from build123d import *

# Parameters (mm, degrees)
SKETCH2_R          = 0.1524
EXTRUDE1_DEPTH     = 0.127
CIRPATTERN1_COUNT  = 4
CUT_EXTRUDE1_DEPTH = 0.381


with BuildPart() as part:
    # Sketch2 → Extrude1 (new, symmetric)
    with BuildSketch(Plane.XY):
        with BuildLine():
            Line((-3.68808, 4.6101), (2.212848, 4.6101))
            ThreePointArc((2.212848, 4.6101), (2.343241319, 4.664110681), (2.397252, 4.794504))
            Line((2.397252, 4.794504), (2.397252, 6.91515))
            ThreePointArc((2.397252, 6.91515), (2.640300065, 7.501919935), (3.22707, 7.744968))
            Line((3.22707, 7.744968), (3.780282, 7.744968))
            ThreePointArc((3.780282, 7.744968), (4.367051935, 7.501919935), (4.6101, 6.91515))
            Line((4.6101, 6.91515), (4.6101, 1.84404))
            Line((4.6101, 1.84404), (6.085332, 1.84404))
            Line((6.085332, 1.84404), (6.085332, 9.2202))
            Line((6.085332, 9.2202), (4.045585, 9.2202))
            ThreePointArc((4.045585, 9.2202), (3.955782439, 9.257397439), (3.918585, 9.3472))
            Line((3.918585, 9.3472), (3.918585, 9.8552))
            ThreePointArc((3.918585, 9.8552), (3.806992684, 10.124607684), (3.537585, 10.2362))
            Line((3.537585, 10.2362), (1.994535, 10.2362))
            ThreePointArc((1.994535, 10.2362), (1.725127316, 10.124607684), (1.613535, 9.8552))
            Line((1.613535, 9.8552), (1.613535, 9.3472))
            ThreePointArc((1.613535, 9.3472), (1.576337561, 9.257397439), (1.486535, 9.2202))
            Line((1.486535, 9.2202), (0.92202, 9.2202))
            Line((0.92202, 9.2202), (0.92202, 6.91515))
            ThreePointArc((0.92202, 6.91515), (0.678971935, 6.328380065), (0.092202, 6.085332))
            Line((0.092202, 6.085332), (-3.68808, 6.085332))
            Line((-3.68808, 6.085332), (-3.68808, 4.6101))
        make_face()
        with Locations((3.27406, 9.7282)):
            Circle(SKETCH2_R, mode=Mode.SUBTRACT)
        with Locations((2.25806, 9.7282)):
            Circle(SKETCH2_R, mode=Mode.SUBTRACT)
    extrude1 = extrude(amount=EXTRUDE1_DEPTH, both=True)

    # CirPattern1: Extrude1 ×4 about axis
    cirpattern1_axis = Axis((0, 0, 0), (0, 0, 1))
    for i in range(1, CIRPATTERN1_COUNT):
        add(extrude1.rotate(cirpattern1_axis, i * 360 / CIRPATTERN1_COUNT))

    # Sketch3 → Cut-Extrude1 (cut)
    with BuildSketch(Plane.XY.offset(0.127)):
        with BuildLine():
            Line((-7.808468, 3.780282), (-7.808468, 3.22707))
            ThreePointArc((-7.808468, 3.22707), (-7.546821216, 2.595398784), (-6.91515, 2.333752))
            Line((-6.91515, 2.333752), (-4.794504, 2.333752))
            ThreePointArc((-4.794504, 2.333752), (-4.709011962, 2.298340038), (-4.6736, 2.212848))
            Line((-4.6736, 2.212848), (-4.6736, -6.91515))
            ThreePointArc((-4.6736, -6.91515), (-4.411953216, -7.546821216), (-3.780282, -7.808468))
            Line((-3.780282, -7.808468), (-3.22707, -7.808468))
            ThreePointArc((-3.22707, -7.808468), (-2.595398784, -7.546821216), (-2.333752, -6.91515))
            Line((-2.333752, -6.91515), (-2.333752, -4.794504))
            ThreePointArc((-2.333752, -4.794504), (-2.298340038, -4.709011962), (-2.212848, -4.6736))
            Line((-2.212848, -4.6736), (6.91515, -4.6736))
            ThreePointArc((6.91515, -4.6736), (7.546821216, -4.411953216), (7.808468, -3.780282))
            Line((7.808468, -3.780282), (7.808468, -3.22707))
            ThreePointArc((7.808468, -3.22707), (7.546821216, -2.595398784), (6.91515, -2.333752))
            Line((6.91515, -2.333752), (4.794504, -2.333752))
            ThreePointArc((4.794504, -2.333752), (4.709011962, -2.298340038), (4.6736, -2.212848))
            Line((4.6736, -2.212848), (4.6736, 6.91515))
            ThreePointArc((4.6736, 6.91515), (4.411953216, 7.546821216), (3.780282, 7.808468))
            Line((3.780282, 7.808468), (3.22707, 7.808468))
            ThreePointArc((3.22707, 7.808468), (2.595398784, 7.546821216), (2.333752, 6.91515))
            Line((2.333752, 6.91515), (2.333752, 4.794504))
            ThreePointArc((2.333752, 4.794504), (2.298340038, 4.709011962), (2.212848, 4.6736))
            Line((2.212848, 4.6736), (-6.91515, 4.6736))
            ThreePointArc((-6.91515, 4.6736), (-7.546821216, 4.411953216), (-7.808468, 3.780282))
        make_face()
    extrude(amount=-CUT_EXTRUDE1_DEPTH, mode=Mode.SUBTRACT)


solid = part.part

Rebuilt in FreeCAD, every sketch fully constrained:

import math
import FreeCAD as App
import Part
import Sketcher
Q = App.Units.Quantity

doc = App.newDocument("Part")
body = doc.addObject("PartDesign::Body", "Body")

# Sketch on XY plane
sketch1 = doc.addObject("Sketcher::SketchObject", "Sketch")
body.addObject(sketch1)
sketch1.AttachmentSupport = (doc.XY_Plane, [""])
sketch1.MapMode = "FlatFace"
sketch1.addGeometry(Part.LineSegment(App.Vector(-3.69, 4.61, 0), App.Vector(2.21, 4.61, 0)), False)
sketch1.addGeometry(Part.ArcOfCircle(Part.Circle(App.Vector(2.21, 4.79, 0), App.Vector(0, 0, 1), 0.18), math.radians(-90), math.radians(0)), False)
sketch1.addGeometry(Part.LineSegment(App.Vector(2.4, 4.79, 0), App.Vector(2.4, 6.92, 0)), False)
sketch1.addGeometry(Part.ArcOfCircle(Part.Circle(App.Vector(3.23, 6.92, 0), App.Vector(0, 0, 1), 0.83), math.radians(90), math.radians(180)), False)
sketch1.addGeometry(Part.LineSegment(App.Vector(3.23, 7.74, 0), App.Vector(3.78, 7.74, 0)), False)
sketch1.addGeometry(Part.ArcOfCircle(Part.Circle(App.Vector(3.78, 6.92, 0), App.Vector(0, 0, 1), 0.83), math.radians(0), math.radians(90)), False)
sketch1.addGeometry(Part.LineSegment(App.Vector(4.61, 6.92, 0), App.Vector(4.61, 1.84, 0)), False)
sketch1.addGeometry(Part.LineSegment(App.Vector(4.61, 1.84, 0), App.Vector(6.09, 1.84, 0)), False)
sketch1.addGeometry(Part.LineSegment(App.Vector(6.09, 1.84, 0), App.Vector(6.09, 9.22, 0)), False)
sketch1.addGeometry(Part.LineSegment(App.Vector(6.09, 9.22, 0), App.Vector(4.05, 9.22, 0)), False)
sketch1.addGeometry(Part.ArcOfCircle(Part.Circle(App.Vector(4.05, 9.35, 0), App.Vector(0, 0, 1), 0.13), math.radians(-180), math.radians(-90)), False)
sketch1.addGeometry(Part.LineSegment(App.Vector(3.92, 9.35, 0), App.Vector(3.92, 9.86, 0)), False)
sketch1.addGeometry(Part.ArcOfCircle(Part.Circle(App.Vector(3.54, 9.86, 0), App.Vector(0, 0, 1), 0.38), math.radians(0), math.radians(90)), False)
sketch1.addGeometry(Part.LineSegment(App.Vector(3.54, 10.24, 0), App.Vector(1.99, 10.24, 0)), False)
sketch1.addGeometry(Part.ArcOfCircle(Part.Circle(App.Vector(1.99, 9.86, 0), App.Vector(0, 0, 1), 0.38), math.radians(90), math.radians(180)), False)
sketch1.addGeometry(Part.LineSegment(App.Vector(1.61, 9.86, 0), App.Vector(1.61, 9.35, 0)), False)
sketch1.addGeometry(Part.ArcOfCircle(Part.Circle(App.Vector(1.49, 9.35, 0), App.Vector(0, 0, 1), 0.13), math.radians(-90), math.radians(0)), False)
sketch1.addGeometry(Part.LineSegment(App.Vector(1.49, 9.22, 0), App.Vector(0.92, 9.22, 0)), False)
sketch1.addGeometry(Part.LineSegment(App.Vector(0.92, 9.22, 0), App.Vector(0.92, 6.92, 0)), False)
sketch1.addGeometry(Part.ArcOfCircle(Part.Circle(App.Vector(0.09, 6.92, 0), App.Vector(0, 0, 1), 0.83), math.radians(-90), math.radians(0)), False)
sketch1.addGeometry(Part.LineSegment(App.Vector(0.09, 6.09, 0), App.Vector(-3.69, 6.09, 0)), False)
sketch1.addGeometry(Part.LineSegment(App.Vector(-3.69, 6.09, 0), App.Vector(-3.69, 4.61, 0)), False)
sketch1.addGeometry(Part.Circle(App.Vector(2.26, 9.73, 0), App.Vector(0, 0, 1), 0.15), False)
sketch1.addGeometry(Part.Circle(App.Vector(3.27, 9.73, 0), App.Vector(0, 0, 1), 0.15), False)
sketch1.addConstraint(Sketcher.Constraint("Tangent", 0, 2, 1, 1))
sketch1.addConstraint(Sketcher.Constraint("Tangent", 1, 2, 2, 1))
sketch1.addConstraint(Sketcher.Constraint("Tangent", 2, 2, 3, 2))
sketch1.addConstraint(Sketcher.Constraint("Tangent", 3, 1, 4, 1))
sketch1.addConstraint(Sketcher.Constraint("Tangent", 4, 2, 5, 2))
sketch1.addConstraint(Sketcher.Constraint("Tangent", 5, 1, 6, 1))
sketch1.addConstraint(Sketcher.Constraint("Coincident", 6, 2, 7, 1))
sketch1.addConstraint(Sketcher.Constraint("Coincident", 7, 2, 8, 1))
sketch1.addConstraint(Sketcher.Constraint("Coincident", 8, 2, 9, 1))
sketch1.addConstraint(Sketcher.Constraint("Tangent", 9, 2, 10, 2))
sketch1.addConstraint(Sketcher.Constraint("Tangent", 10, 1, 11, 1))
sketch1.addConstraint(Sketcher.Constraint("Tangent", 11, 2, 12, 1))
sketch1.addConstraint(Sketcher.Constraint("Tangent", 12, 2, 13, 1))
sketch1.addConstraint(Sketcher.Constraint("Tangent", 13, 2, 14, 1))
sketch1.addConstraint(Sketcher.Constraint("Tangent", 14, 2, 15, 1))
sketch1.addConstraint(Sketcher.Constraint("Tangent", 15, 2, 16, 2))
sketch1.addConstraint(Sketcher.Constraint("Tangent", 16, 1, 17, 1))
sketch1.addConstraint(Sketcher.Constraint("Coincident", 17, 2, 18, 1))
sketch1.addConstraint(Sketcher.Constraint("Tangent", 18, 2, 19, 2))
sketch1.addConstraint(Sketcher.Constraint("Tangent", 19, 1, 20, 1))
sketch1.addConstraint(Sketcher.Constraint("Coincident", 20, 2, 21, 1))
sketch1.addConstraint(Sketcher.Constraint("Coincident", 21, 2, 0, 1))
sketch1.addConstraint(Sketcher.Constraint("Horizontal", 0))
sketch1.addConstraint(Sketcher.Constraint("Vertical", 2))
sketch1.addConstraint(Sketcher.Constraint("Horizontal", 4))
sketch1.addConstraint(Sketcher.Constraint("Vertical", 6))
sketch1.addConstraint(Sketcher.Constraint("Horizontal", 7))
sketch1.addConstraint(Sketcher.Constraint("Vertical", 8))
sketch1.addConstraint(Sketcher.Constraint("Horizontal", 9))
sketch1.addConstraint(Sketcher.Constraint("Vertical", 11))
sketch1.addConstraint(Sketcher.Constraint("Horizontal", 13))
sketch1.addConstraint(Sketcher.Constraint("Vertical", 15))
sketch1.addConstraint(Sketcher.Constraint("Horizontal", 17))
sketch1.addConstraint(Sketcher.Constraint("Vertical", 18))
sketch1.addConstraint(Sketcher.Constraint("Horizontal", 20))
sketch1.addConstraint(Sketcher.Constraint("Vertical", 21))
sketch1.addConstraint(Sketcher.Constraint("Equal", 3, 5))
sketch1.addConstraint(Sketcher.Constraint("Equal", 12, 14))
sketch1.addConstraint(Sketcher.Constraint("Equal", 10, 16))
sketch1.addConstraint(Sketcher.Constraint("Equal", 5, 19))
sketch1.addConstraint(Sketcher.Constraint("Equal", 22, 23))
sketch1.addConstraint(Sketcher.Constraint("Horizontal", 10, 3, 16, 3))
sketch1.addConstraint(Sketcher.Constraint("Horizontal", 5, 3, 19, 3))
sketch1.addConstraint(Sketcher.Constraint("Horizontal", 22, 3, 23, 3))
sketch1.addConstraint(Sketcher.Constraint("Equal", 7, 21))
sketch1.addConstraint(Sketcher.Constraint("Diameter", 22, Q("0.012 in")))
sketch1.addConstraint(Sketcher.Constraint("Radius", 10, Q("0.005 in")))
sketch1.addConstraint(Sketcher.Constraint("Radius", 12, Q("0.015 in")))
sketch1.addConstraint(Sketcher.Constraint("DistanceY", 11, 1, 11, 2, Q("0.02 in")))
sketch1.addConstraint(Sketcher.Constraint("DistanceX", 22, 3, 23, 3, Q("0.04 in")))
sketch1.addConstraint(Sketcher.Constraint("DistanceY", 8, 2, 23, 3, Q("0.02 in")))
sketch1.addConstraint(Sketcher.Constraint("DistanceY", 8, 1, 8, 2, Q("0.2904 in")))
sketch1.addConstraint(Sketcher.Constraint("DistanceY", -1, 1, 10, 3, Q("0.368 in")))
sketch1.addConstraint(Sketcher.Constraint("DistanceX", -1, 1, 22, 3, Q("0.0889 in")))
sketch1.addConstraint(Sketcher.Constraint("DistanceY", -1, 1, 0, 2, Q("0.1815 in")))
sketch1.addConstraint(Sketcher.Constraint("DistanceX", -1, 1, 5, 1, Q("0.1815 in")))
sketch1.addConstraint(Sketcher.Constraint("DistanceX", -1, 1, 17, 2, Q("0.0363 in")))
sketch1.addConstraint(Sketcher.Constraint("DistanceX", 20, 2, -1, 1, Q("0.1452 in")))
sketch1.addConstraint(Sketcher.Constraint("Radius", 1, 0.184404))
sketch1.addConstraint(Sketcher.Constraint("Radius", 3, 0.829818))
sketch1.addConstraint(Sketcher.Constraint("DistanceX", 1, 2, 7, 2, Q("0.1452 in")))
sketch1.addConstraint(Sketcher.Constraint("DistanceX", 0, 1, 0, 2, 5.900928))
sketch1.addConstraint(Sketcher.Constraint("DistanceX", 13, 2, 13, 1, 1.54305))
sketch1.addConstraint(Sketcher.Constraint("DistanceX", 9, 2, 9, 1, 2.039747))
pad1 = doc.addObject("PartDesign::Pad", "Pad")
body.addObject(pad1)
pad1.Profile = sketch1
pad1.Length = Q("0.01 in")
pad1.Midplane = True
doc.recompute()

polarpattern = doc.addObject("PartDesign::PolarPattern", "PolarPattern")
body.addObject(polarpattern)
polarpattern.Originals = [pad1]
polarpattern.Axis = (doc.Z_Axis, [""])
polarpattern.Angle = 360
polarpattern.Occurrences = 4
body.Tip = polarpattern

# Sketch on XY plane
sketch2 = doc.addObject("Sketcher::SketchObject", "Sketch001")
body.addObject(sketch2)
sketch2.AttachmentSupport = (doc.XY_Plane, [""])
sketch2.MapMode = "FlatFace"
sketch2.AttachmentOffset = App.Placement(App.Vector(0, 0, 0.005 * 25.4), App.Rotation())
sketch2.addGeometry(Part.LineSegment(App.Vector(-7.81, 3.78, 0), App.Vector(-7.81, 3.23, 0)), False)
sketch2.addGeometry(Part.ArcOfCircle(Part.Circle(App.Vector(-6.92, 3.23, 0), App.Vector(0, 0, 1), 0.89), math.radians(180), math.radians(270)), False)
sketch2.addGeometry(Part.LineSegment(App.Vector(-6.92, 2.33, 0), App.Vector(-4.79, 2.33, 0)), False)
sketch2.addGeometry(Part.ArcOfCircle(Part.Circle(App.Vector(-4.79, 2.21, 0), App.Vector(0, 0, 1), 0.12), math.radians(0), math.radians(90)), False)
sketch2.addGeometry(Part.LineSegment(App.Vector(-4.67, 2.21, 0), App.Vector(-4.67, -6.92, 0)), False)
sketch2.addGeometry(Part.ArcOfCircle(Part.Circle(App.Vector(-3.78, -6.92, 0), App.Vector(0, 0, 1), 0.89), math.radians(180), math.radians(270)), False)
sketch2.addGeometry(Part.LineSegment(App.Vector(-3.78, -7.81, 0), App.Vector(-3.23, -7.81, 0)), False)
sketch2.addGeometry(Part.ArcOfCircle(Part.Circle(App.Vector(-3.23, -6.92, 0), App.Vector(0, 0, 1), 0.89), math.radians(-90), math.radians(0)), False)
sketch2.addGeometry(Part.LineSegment(App.Vector(-2.33, -6.92, 0), App.Vector(-2.33, -4.79, 0)), False)
sketch2.addGeometry(Part.ArcOfCircle(Part.Circle(App.Vector(-2.21, -4.79, 0), App.Vector(0, 0, 1), 0.12), math.radians(90), math.radians(180)), False)
sketch2.addGeometry(Part.LineSegment(App.Vector(-2.21, -4.67, 0), App.Vector(6.92, -4.67, 0)), False)
sketch2.addGeometry(Part.ArcOfCircle(Part.Circle(App.Vector(6.92, -3.78, 0), App.Vector(0, 0, 1), 0.89), math.radians(-90), math.radians(0)), False)
sketch2.addGeometry(Part.LineSegment(App.Vector(7.81, -3.78, 0), App.Vector(7.81, -3.23, 0)), False)
sketch2.addGeometry(Part.ArcOfCircle(Part.Circle(App.Vector(6.92, -3.23, 0), App.Vector(0, 0, 1), 0.89), math.radians(0), math.radians(90)), False)
sketch2.addGeometry(Part.LineSegment(App.Vector(6.92, -2.33, 0), App.Vector(4.79, -2.33, 0)), False)
sketch2.addGeometry(Part.ArcOfCircle(Part.Circle(App.Vector(4.79, -2.21, 0), App.Vector(0, 0, 1), 0.12), math.radians(-180), math.radians(-90)), False)
sketch2.addGeometry(Part.LineSegment(App.Vector(4.67, -2.21, 0), App.Vector(4.67, 6.92, 0)), False)
sketch2.addGeometry(Part.ArcOfCircle(Part.Circle(App.Vector(3.78, 6.92, 0), App.Vector(0, 0, 1), 0.89), math.radians(0), math.radians(90)), False)
sketch2.addGeometry(Part.LineSegment(App.Vector(3.78, 7.81, 0), App.Vector(3.23, 7.81, 0)), False)
sketch2.addGeometry(Part.ArcOfCircle(Part.Circle(App.Vector(3.23, 6.92, 0), App.Vector(0, 0, 1), 0.89), math.radians(90), math.radians(180)), False)
sketch2.addGeometry(Part.LineSegment(App.Vector(2.33, 6.92, 0), App.Vector(2.33, 4.79, 0)), False)
sketch2.addGeometry(Part.ArcOfCircle(Part.Circle(App.Vector(2.21, 4.79, 0), App.Vector(0, 0, 1), 0.12), math.radians(-90), math.radians(0)), False)
sketch2.addGeometry(Part.LineSegment(App.Vector(2.21, 4.67, 0), App.Vector(-6.92, 4.67, 0)), False)
sketch2.addGeometry(Part.ArcOfCircle(Part.Circle(App.Vector(-6.92, 3.78, 0), App.Vector(0, 0, 1), 0.89), math.radians(90), math.radians(180)), False)
sketch2.addConstraint(Sketcher.Constraint("Tangent", 0, 2, 1, 1))
sketch2.addConstraint(Sketcher.Constraint("Tangent", 1, 2, 2, 1))
sketch2.addConstraint(Sketcher.Constraint("Tangent", 2, 2, 3, 2))
sketch2.addConstraint(Sketcher.Constraint("Tangent", 3, 1, 4, 1))
sketch2.addConstraint(Sketcher.Constraint("Tangent", 4, 2, 5, 1))
sketch2.addConstraint(Sketcher.Constraint("Tangent", 5, 2, 6, 1))
sketch2.addConstraint(Sketcher.Constraint("Tangent", 6, 2, 7, 1))
sketch2.addConstraint(Sketcher.Constraint("Tangent", 7, 2, 8, 1))
sketch2.addConstraint(Sketcher.Constraint("Tangent", 8, 2, 9, 2))
sketch2.addConstraint(Sketcher.Constraint("Tangent", 9, 1, 10, 1))
sketch2.addConstraint(Sketcher.Constraint("Tangent", 10, 2, 11, 1))
sketch2.addConstraint(Sketcher.Constraint("Tangent", 11, 2, 12, 1))
sketch2.addConstraint(Sketcher.Constraint("Tangent", 12, 2, 13, 1))
sketch2.addConstraint(Sketcher.Constraint("Tangent", 13, 2, 14, 1))
sketch2.addConstraint(Sketcher.Constraint("Tangent", 14, 2, 15, 2))
sketch2.addConstraint(Sketcher.Constraint("Tangent", 15, 1, 16, 1))
sketch2.addConstraint(Sketcher.Constraint("Tangent", 16, 2, 17, 1))
sketch2.addConstraint(Sketcher.Constraint("Tangent", 17, 2, 18, 1))
sketch2.addConstraint(Sketcher.Constraint("Tangent", 18, 2, 19, 1))
sketch2.addConstraint(Sketcher.Constraint("Tangent", 19, 2, 20, 1))
sketch2.addConstraint(Sketcher.Constraint("Tangent", 20, 2, 21, 2))
sketch2.addConstraint(Sketcher.Constraint("Tangent", 21, 1, 22, 1))
sketch2.addConstraint(Sketcher.Constraint("Tangent", 22, 2, 23, 1))
sketch2.addConstraint(Sketcher.Constraint("Tangent", 23, 2, 0, 1))
sketch2.addConstraint(Sketcher.Constraint("Vertical", 0))
sketch2.addConstraint(Sketcher.Constraint("Horizontal", 2))
sketch2.addConstraint(Sketcher.Constraint("Vertical", 4))
sketch2.addConstraint(Sketcher.Constraint("Horizontal", 6))
sketch2.addConstraint(Sketcher.Constraint("Vertical", 8))
sketch2.addConstraint(Sketcher.Constraint("Horizontal", 10))
sketch2.addConstraint(Sketcher.Constraint("Vertical", 12))
sketch2.addConstraint(Sketcher.Constraint("Horizontal", 14))
sketch2.addConstraint(Sketcher.Constraint("Vertical", 16))
sketch2.addConstraint(Sketcher.Constraint("Horizontal", 18))
sketch2.addConstraint(Sketcher.Constraint("Vertical", 20))
sketch2.addConstraint(Sketcher.Constraint("Horizontal", 22))
sketch2.addConstraint(Sketcher.Constraint("Equal", 1, 5))
sketch2.addConstraint(Sketcher.Constraint("Equal", 5, 7))
sketch2.addConstraint(Sketcher.Constraint("Equal", 3, 9))
sketch2.addConstraint(Sketcher.Constraint("Equal", 7, 11))
sketch2.addConstraint(Sketcher.Constraint("Equal", 11, 13))
sketch2.addConstraint(Sketcher.Constraint("Equal", 9, 15))
sketch2.addConstraint(Sketcher.Constraint("Equal", 13, 17))
sketch2.addConstraint(Sketcher.Constraint("Equal", 17, 19))
sketch2.addConstraint(Sketcher.Constraint("Equal", 15, 21))
sketch2.addConstraint(Sketcher.Constraint("Equal", 19, 23))
sketch2.addConstraint(Sketcher.Constraint("Symmetric", 1, 3, 13, 3, -1, 1))
sketch2.addConstraint(Sketcher.Constraint("Symmetric", 5, 3, 17, 3, -1, 1))
sketch2.addConstraint(Sketcher.Constraint("Symmetric", 9, 3, 21, 3, -1, 1))
sketch2.addConstraint(Sketcher.Constraint("Equal", 18, 0))
sketch2.addConstraint(Sketcher.Constraint("Equal", 22, 4))
sketch2.addConstraint(Sketcher.Constraint("Equal", 14, 8))
sketch2.addConstraint(Sketcher.Constraint("DistanceX", 3, 1, -1, 1, Q("0.184 in")))
sketch2.addConstraint(Sketcher.Constraint("Radius", 1, 0.893318))
sketch2.addConstraint(Sketcher.Constraint("Radius", 3, 0.120904))
sketch2.addConstraint(Sketcher.Constraint("DistanceY", 5, 3, 1, 3, Q("0.3993 in")))
sketch2.addConstraint(Sketcher.Constraint("DistanceX", 1, 3, 7, 3, Q("0.1452 in")))
pocket1 = doc.addObject("PartDesign::Pocket", "Pocket")
body.addObject(pocket1)
pocket1.Profile = sketch2
pocket1.Length = Q("0.015 in")

doc.recompute()
